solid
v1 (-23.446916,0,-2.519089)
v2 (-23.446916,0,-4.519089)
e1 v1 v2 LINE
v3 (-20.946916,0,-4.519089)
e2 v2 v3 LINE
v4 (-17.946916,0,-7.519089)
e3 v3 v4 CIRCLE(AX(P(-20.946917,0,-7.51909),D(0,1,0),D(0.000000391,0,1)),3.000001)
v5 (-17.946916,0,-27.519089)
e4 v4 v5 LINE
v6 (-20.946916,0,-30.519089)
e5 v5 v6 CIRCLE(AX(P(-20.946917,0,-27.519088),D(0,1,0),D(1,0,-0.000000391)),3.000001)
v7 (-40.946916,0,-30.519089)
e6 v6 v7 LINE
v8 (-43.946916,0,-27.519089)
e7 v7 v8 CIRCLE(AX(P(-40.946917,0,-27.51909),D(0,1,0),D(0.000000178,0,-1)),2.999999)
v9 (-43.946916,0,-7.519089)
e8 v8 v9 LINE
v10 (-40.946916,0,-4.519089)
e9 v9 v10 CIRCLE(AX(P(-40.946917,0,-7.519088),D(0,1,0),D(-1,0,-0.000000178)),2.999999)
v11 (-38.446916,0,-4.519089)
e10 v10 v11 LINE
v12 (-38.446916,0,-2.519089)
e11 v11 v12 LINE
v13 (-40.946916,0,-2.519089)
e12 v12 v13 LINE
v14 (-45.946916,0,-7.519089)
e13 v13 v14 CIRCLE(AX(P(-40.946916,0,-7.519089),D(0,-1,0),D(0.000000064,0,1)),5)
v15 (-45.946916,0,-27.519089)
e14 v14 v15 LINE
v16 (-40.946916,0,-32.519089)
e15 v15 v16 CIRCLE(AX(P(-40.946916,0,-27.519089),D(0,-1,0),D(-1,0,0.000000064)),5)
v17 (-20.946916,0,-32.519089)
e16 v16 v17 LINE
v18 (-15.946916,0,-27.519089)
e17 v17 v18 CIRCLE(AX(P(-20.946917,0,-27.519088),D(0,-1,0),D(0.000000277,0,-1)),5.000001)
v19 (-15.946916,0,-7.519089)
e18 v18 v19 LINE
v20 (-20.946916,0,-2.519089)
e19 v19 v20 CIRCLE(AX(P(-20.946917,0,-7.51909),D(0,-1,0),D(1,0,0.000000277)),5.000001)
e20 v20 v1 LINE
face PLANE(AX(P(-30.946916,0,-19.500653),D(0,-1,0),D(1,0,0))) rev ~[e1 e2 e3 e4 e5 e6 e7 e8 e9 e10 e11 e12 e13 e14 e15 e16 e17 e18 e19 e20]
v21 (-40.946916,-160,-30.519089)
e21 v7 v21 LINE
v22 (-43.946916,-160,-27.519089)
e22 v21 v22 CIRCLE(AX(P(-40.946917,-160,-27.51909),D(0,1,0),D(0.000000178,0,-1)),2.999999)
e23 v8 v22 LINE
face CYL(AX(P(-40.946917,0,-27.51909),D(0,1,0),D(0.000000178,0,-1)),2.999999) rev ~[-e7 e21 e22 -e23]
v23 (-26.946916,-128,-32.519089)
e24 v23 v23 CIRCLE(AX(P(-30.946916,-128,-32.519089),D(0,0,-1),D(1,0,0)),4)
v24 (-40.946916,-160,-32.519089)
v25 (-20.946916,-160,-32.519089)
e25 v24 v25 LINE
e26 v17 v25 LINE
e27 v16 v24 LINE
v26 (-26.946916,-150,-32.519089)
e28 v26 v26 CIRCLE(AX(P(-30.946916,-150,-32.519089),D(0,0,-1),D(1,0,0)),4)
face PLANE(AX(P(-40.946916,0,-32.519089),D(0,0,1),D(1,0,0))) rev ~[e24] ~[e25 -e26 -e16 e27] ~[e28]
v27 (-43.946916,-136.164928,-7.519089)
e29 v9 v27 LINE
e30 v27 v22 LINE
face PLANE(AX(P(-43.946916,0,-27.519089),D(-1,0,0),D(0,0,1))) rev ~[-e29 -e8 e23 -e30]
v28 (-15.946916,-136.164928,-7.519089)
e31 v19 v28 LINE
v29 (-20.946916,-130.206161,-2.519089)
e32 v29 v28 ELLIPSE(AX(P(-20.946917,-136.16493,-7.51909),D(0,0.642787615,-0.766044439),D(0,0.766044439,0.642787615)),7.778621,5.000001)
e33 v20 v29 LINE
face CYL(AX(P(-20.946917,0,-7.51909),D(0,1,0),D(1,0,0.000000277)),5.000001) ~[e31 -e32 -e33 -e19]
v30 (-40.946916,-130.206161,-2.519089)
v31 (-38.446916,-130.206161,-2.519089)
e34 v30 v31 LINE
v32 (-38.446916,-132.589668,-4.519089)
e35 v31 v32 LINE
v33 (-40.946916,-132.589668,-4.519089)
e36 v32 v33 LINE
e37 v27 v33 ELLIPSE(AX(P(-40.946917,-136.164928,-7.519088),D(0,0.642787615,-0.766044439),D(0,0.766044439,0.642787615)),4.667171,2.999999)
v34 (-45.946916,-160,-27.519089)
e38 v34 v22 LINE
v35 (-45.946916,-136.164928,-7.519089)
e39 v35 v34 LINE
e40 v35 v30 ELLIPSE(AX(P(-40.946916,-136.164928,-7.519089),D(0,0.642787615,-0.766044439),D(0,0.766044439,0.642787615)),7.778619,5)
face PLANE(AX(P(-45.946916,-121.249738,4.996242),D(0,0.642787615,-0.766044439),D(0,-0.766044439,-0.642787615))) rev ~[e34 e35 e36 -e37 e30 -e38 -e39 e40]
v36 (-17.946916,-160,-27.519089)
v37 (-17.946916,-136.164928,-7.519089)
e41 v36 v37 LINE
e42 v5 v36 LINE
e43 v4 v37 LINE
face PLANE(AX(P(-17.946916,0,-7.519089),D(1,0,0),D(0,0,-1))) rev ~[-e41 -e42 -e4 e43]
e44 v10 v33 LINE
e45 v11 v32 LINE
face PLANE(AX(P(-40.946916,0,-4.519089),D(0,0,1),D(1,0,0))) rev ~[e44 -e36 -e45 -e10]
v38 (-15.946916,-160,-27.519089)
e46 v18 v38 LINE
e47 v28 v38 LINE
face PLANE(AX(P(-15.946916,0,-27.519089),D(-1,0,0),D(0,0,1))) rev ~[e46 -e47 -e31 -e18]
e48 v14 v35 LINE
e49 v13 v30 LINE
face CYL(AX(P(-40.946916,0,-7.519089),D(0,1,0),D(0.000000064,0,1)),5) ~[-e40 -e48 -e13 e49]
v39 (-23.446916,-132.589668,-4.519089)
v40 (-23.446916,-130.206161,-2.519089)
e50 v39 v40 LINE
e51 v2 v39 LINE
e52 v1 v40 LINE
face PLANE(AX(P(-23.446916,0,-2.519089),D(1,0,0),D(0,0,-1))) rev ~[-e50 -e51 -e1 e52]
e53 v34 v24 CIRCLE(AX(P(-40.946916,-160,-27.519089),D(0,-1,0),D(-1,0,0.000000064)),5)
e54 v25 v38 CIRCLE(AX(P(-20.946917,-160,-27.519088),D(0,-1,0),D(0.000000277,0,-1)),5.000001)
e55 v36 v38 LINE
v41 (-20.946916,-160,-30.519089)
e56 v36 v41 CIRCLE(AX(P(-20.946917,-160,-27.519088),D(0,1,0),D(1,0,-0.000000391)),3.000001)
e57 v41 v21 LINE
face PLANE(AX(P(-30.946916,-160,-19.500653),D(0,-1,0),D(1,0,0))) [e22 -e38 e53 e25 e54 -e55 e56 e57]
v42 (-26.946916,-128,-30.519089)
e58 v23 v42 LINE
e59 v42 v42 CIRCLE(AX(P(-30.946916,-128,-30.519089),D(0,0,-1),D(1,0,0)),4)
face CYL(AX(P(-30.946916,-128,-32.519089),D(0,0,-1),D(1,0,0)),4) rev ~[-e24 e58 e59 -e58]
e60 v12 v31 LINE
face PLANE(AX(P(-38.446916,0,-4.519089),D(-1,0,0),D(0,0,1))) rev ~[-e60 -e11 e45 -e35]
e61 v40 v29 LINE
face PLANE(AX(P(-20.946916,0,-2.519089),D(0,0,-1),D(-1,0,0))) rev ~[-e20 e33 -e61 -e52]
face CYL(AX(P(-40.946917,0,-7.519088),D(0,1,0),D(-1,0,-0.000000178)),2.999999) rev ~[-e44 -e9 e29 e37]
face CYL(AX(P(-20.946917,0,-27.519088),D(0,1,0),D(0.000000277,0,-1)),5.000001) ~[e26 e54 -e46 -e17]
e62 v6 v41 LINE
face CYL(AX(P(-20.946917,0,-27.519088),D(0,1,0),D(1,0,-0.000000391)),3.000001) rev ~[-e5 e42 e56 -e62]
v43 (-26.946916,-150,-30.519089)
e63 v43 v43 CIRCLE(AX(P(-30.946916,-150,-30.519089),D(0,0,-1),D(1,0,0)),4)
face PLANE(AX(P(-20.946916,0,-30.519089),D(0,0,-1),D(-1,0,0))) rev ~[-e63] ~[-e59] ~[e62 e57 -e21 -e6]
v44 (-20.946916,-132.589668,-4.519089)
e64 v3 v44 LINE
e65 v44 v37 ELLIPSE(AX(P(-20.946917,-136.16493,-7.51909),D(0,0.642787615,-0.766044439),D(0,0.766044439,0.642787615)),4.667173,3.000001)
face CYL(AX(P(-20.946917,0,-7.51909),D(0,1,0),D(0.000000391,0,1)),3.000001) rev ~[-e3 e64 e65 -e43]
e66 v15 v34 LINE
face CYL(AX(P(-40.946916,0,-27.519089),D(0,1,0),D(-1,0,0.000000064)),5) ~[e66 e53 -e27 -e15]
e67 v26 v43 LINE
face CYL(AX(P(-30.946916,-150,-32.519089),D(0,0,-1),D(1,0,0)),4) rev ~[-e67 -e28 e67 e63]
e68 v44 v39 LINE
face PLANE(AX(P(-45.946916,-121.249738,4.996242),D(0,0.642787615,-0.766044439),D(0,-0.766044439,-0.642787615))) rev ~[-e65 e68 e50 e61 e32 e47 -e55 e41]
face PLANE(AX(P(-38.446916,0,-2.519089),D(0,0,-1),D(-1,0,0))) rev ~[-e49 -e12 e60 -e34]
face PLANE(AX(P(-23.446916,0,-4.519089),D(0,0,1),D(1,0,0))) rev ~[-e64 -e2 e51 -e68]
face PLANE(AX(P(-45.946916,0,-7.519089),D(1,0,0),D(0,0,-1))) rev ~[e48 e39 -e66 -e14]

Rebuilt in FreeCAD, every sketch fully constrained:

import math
import FreeCAD as App
import Part
import Sketcher
from FreeCAD import Vector
Q = App.Units.Quantity

doc = App.newDocument("Part")
body = doc.addObject("PartDesign::Body", "Body")

# Sketch on XZ plane
sketch1 = body.newObject("Sketcher::SketchObject", "Sketch")
sketch1.AttachmentSupport = (doc.getObject("XZ_Plane"), [""])
sketch1.MapMode = "FlatFace"
sketch1.addGeometry([
    Part.ArcOfCircle(Part.Circle(Vector(-20.946917, -7.51909, 0), Vector(0, 0, 1), 5.000001), math.radians(0.000016), math.radians(89.999984)),  # 0
    Part.LineSegment(Vector(-20.946916, -2.519089, 0), Vector(-23.446916, -2.519089, 0)),  # 1
    Part.LineSegment(Vector(-23.446916, -2.519089, 0), Vector(-23.446916, -4.519089, 0)),  # 2
    Part.LineSegment(Vector(-23.446916, -4.519089, 0), Vector(-20.946916, -4.519089, 0)),  # 3
    Part.ArcOfCircle(Part.Circle(Vector(-20.946917, -7.51909, 0), Vector(0, 0, 1), 3.000001), math.radians(0.000022), math.radians(89.999978)),  # 4
    Part.LineSegment(Vector(-17.946916, -7.519089, 0), Vector(-17.946916, -27.519089, 0)),  # 5
    Part.ArcOfCircle(Part.Circle(Vector(-20.946917, -27.519088, 0), Vector(0, 0, 1), 3.000001), math.radians(-89.999978), math.radians(-0.000022)),  # 6
    Part.LineSegment(Vector(-20.946916, -30.519089, 0), Vector(-40.946916, -30.519089, 0)),  # 7
    Part.ArcOfCircle(Part.Circle(Vector(-40.946917, -27.51909, 0), Vector(0, 0, 1), 2.999999), math.radians(179.99999), math.radians(270.00001)),  # 8
    Part.LineSegment(Vector(-43.946916, -27.519089, 0), Vector(-43.946916, -7.519089, 0)),  # 9
    Part.ArcOfCircle(Part.Circle(Vector(-40.946917, -7.519088, 0), Vector(0, 0, 1), 2.999999), math.radians(89.99999), math.radians(180.00001)),  # 10
    Part.LineSegment(Vector(-40.946916, -4.519089, 0), Vector(-38.446916, -4.519089, 0)),  # 11
    Part.LineSegment(Vector(-38.446916, -4.519089, 0), Vector(-38.446916, -2.519089, 0)),  # 12
    Part.LineSegment(Vector(-38.446916, -2.519089, 0), Vector(-40.946916, -2.519089, 0)),  # 13
    Part.ArcOfCircle(Part.Circle(Vector(-40.946916, -7.519089, 0), Vector(0, 0, 1), 5), math.radians(89.999996), math.radians(180.000004)),  # 14
    Part.LineSegment(Vector(-45.946916, -7.519089, 0), Vector(-45.946916, -27.519089, 0)),  # 15
    Part.ArcOfCircle(Part.Circle(Vector(-40.946916, -27.519089, 0), Vector(0, 0, 1), 5), math.radians(179.999996), math.radians(270.000004)),  # 16
    Part.LineSegment(Vector(-40.946916, -32.519089, 0), Vector(-20.946916, -32.519089, 0)),  # 17
    Part.ArcOfCircle(Part.Circle(Vector(-20.946917, -27.519088, 0), Vector(0, 0, 1), 5.000001), math.radians(-89.999984), math.radians(-0.000016)),  # 18
    Part.LineSegment(Vector(-15.946916, -27.519089, 0), Vector(-15.946916, -7.519089, 0)),  # 19
], False)
sketch1.addConstraint([
    Sketcher.Constraint("Tangent", 0, 2, 1, 1),
    Sketcher.Constraint("Coincident", 1, 2, 2, 1),
    Sketcher.Constraint("Coincident", 2, 2, 3, 1),
    Sketcher.Constraint("Tangent", 3, 2, 4, 2),
    Sketcher.Constraint("Tangent", 4, 1, 5, 1),
    Sketcher.Constraint("Tangent", 5, 2, 6, 2),
    Sketcher.Constraint("Tangent", 6, 1, 7, 1),
    Sketcher.Constraint("Tangent", 7, 2, 8, 2),
    Sketcher.Constraint("Tangent", 8, 1, 9, 1),
    Sketcher.Constraint("Tangent", 9, 2, 10, 2),
    Sketcher.Constraint("Tangent", 10, 1, 11, 1),
    Sketcher.Constraint("Coincident", 11, 2, 12, 1),
    Sketcher.Constraint("Coincident", 12, 2, 13, 1),
    Sketcher.Constraint("Tangent", 13, 2, 14, 1),
    Sketcher.Constraint("Tangent", 14, 2, 15, 1),
    Sketcher.Constraint("Tangent", 15, 2, 16, 1),
    Sketcher.Constraint("Tangent", 16, 2, 17, 1),
    Sketcher.Constraint("Tangent", 17, 2, 18, 1),
    Sketcher.Constraint("Tangent", 18, 2, 19, 1),
    Sketcher.Constraint("Tangent", 19, 2, 0, 1),
    Sketcher.Constraint("Horizontal", 1),
    Sketcher.Constraint("Vertical", 2),
    Sketcher.Constraint("Horizontal", 3),
    Sketcher.Constraint("Vertical", 5),
    Sketcher.Constraint("Horizontal", 7),
    Sketcher.Constraint("Vertical", 9),
    Sketcher.Constraint("Horizontal", 11),
    Sketcher.Constraint("Vertical", 12),
    Sketcher.Constraint("Horizontal", 13),
    Sketcher.Constraint("Vertical", 15),
    Sketcher.Constraint("Horizontal", 17),
    Sketcher.Constraint("Vertical", 19),
    Sketcher.Constraint("Coincident", 4, 3, 0, 3),
    Sketcher.Constraint("Coincident", 14, 3, 10, 3),
    Sketcher.Constraint("Coincident", 16, 3, 8, 3),
    Sketcher.Constraint("Coincident", 18, 3, 6, 3),
    Sketcher.Constraint("Equal", 4, 6),
    Sketcher.Constraint("Equal", 6, 8),
    Sketcher.Constraint("Equal", 8, 10),
    Sketcher.Constraint("Horizontal", 4, 3, 10, 3),
    Sketcher.Constraint("Equal", 3, 11),
    Sketcher.Constraint("Equal", 17, 5),
    Sketcher.Constraint("Radius", 0, 5.000001),
    Sketcher.Constraint("Radius", 4, 3.000001),
    Sketcher.Constraint("DistanceX", 7, 2, 7, 1, 20.0),
    Sketcher.Constraint("DistanceX", 1, 2, 1, 1, 2.5),
    Sketcher.Constraint("DistanceY", 0, 3, -1, 1, 7.51909),
    Sketcher.Constraint("DistanceX", 0, 3, -1, 1, 20.946917),
])
pad1 = body.newObject("PartDesign::Pad", "Pad")
pad1.Profile = sketch1
pad1.Length = 160

# Sketch on YZ plane
sketch2 = body.newObject("Sketcher::SketchObject", "Sketch001")
sketch2.AttachmentSupport = (doc.getObject("YZ_Plane"), [""])
sketch2.MapMode = "FlatFace"
sketch2.AttachmentOffset = App.Placement(Vector(0, 0, -45.946916), App.Rotation())
sketch2.addGeometry([
    Part.LineSegment(Vector(-121.249738, 4.996242, 0), Vector(-160, -27.519089, 0)),
    Part.LineSegment(Vector(-160, -27.519089, 0), Vector(-160, 4.996242, 0)),
    Part.LineSegment(Vector(-160, 4.996242, 0), Vector(-121.249738, 4.996242, 0)),
], False)
sketch2.addConstraint([
    Sketcher.Constraint("Coincident", 0, 2, 1, 1),
    Sketcher.Constraint("Coincident", 1, 2, 2, 1),
    Sketcher.Constraint("Coincident", 2, 2, 0, 1),
    Sketcher.Constraint("Vertical", 1),
    Sketcher.Constraint("Horizontal", 2),
    Sketcher.Constraint("Angle", 0, Q("-140 deg")),
    Sketcher.Constraint("DistanceX", 0, 2, -1, 1, 160.0),
    Sketcher.Constraint("DistanceY", 1, 1, 1, 2, 32.515331),
    Sketcher.Constraint("DistanceY", 0, 2, -1, 1, 27.519089),
])
pocket1 = body.newObject("PartDesign::Pocket", "Pocket")
pocket1.Profile = sketch2
pocket1.Length = 32
pocket1.Reversed = True

# Sketch on XY plane
sketch3 = body.newObject("Sketcher::SketchObject", "Sketch002")
sketch3.AttachmentSupport = (doc.getObject("XY_Plane"), [""])
sketch3.MapMode = "FlatFace"
sketch3.AttachmentOffset = App.Placement(Vector(0, 0, -32.519089), App.Rotation())
sketch3.addGeometry([
    Part.Circle(Vector(-30.946916, -150, 0), Vector(0, 0, 1), 4),
    Part.Circle(Vector(-30.946916, -128, 0), Vector(0, 0, 1), 4),
], False)
sketch3.addConstraint([
    Sketcher.Constraint("Equal", 0, 1),
    Sketcher.Constraint("Vertical", 0, 3, 1, 3),
    Sketcher.Constraint("Diameter", 0, 8.0),
    Sketcher.Constraint("DistanceY", 0, 3, -1, 1, 150.0),
    Sketcher.Constraint("DistanceY", 1, 3, -1, 1, 128.0),
    Sketcher.Constraint("DistanceX", 0, 3, -1, 1, 30.946916),
])
pocket2 = body.newObject("PartDesign::Pocket", "Pocket001")
pocket2.Profile = sketch3
pocket2.Length = 25
pocket2.Reversed = True

doc.recompute()
